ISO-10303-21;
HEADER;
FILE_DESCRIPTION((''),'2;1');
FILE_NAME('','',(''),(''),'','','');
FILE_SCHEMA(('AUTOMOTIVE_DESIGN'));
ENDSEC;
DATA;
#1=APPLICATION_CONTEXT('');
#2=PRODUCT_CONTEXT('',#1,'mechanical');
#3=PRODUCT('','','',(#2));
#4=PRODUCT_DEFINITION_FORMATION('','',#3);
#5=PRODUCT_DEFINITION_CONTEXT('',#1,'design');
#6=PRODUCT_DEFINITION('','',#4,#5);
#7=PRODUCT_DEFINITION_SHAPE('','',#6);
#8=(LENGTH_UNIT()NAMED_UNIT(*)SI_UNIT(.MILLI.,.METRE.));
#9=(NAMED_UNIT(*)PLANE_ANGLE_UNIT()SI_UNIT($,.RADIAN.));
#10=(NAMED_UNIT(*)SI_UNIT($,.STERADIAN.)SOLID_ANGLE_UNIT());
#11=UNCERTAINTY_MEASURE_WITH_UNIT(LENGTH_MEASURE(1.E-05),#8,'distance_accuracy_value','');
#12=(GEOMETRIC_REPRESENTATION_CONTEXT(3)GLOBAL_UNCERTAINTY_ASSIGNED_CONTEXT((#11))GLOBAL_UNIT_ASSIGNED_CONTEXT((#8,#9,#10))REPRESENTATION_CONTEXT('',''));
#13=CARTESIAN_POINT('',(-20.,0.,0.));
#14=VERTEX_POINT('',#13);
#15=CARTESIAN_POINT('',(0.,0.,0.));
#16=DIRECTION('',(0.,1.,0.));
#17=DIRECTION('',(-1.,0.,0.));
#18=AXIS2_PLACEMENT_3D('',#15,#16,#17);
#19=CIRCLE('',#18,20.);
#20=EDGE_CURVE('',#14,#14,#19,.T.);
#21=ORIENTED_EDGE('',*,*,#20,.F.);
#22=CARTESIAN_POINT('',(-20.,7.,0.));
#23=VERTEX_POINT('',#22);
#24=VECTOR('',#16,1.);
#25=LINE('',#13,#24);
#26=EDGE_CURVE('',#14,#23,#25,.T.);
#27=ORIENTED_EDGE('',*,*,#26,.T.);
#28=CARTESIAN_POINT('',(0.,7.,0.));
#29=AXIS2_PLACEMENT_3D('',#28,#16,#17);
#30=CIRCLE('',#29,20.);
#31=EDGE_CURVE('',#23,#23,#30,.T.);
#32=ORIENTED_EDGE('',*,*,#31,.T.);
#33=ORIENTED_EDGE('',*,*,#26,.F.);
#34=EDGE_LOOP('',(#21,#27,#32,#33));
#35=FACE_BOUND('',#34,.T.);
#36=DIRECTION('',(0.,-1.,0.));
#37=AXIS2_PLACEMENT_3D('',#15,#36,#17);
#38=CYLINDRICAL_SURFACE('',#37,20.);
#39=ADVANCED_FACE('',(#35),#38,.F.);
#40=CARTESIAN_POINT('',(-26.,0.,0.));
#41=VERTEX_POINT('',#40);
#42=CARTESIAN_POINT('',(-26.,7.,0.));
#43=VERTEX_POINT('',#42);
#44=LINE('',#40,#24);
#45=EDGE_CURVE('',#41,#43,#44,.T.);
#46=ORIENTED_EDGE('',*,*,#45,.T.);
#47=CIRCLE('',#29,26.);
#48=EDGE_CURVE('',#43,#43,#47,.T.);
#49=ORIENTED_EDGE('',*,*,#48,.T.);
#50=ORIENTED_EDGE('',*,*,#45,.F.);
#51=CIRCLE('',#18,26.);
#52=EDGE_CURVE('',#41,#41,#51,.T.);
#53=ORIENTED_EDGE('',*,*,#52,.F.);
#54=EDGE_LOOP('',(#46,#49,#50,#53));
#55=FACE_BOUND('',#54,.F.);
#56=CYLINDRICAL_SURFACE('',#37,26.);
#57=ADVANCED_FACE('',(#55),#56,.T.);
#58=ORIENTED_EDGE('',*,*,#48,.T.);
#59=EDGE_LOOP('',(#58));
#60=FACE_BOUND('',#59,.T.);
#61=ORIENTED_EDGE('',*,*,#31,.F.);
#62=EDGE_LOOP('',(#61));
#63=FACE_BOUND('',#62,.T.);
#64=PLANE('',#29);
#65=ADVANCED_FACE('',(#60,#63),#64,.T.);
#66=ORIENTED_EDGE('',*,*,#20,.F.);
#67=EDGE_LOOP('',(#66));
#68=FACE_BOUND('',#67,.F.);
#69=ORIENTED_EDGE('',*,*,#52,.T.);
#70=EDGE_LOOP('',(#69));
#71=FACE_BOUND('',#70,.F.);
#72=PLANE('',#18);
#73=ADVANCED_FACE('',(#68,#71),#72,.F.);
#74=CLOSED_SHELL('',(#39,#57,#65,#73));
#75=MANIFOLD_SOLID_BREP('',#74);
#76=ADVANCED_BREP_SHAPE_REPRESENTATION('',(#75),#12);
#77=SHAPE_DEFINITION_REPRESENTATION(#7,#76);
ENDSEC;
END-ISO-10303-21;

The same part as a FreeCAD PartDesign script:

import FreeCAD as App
import Part
import Sketcher
from FreeCAD import Vector
Q = App.Units.Quantity

doc = App.newDocument("Part")
body = doc.addObject("PartDesign::Body", "Body")

sketch1 = doc.addObject("Sketcher::SketchObject", "Sketch")
body.addObject(sketch1)
sketch1.AttachmentSupport = (doc.XZ_Plane, [""])
sketch1.MapMode = "FlatFace"
sketch1.addGeometry([
    Part.Circle(Vector(0, 0, 0), Vector(0, 0, 1), 26),
    Part.Circle(Vector(0, 0, 0), Vector(0, 0, 1), 20),
], False)
sketch1.addConstraint([
    Sketcher.Constraint("Coincident", 0, 3, -1, 1),
    Sketcher.Constraint("Coincident", 1, 3, -1, 1),
    Sketcher.Constraint("Diameter", 0, Q("52 mm")),
    Sketcher.Constraint("Diameter", 1, Q("40 mm")),
])
pad1 = doc.addObject("PartDesign::Pad", "Pad")
body.addObject(pad1)
pad1.Profile = sketch1
pad1.Length = 7
pad1.Reversed = True

doc.recompute()
